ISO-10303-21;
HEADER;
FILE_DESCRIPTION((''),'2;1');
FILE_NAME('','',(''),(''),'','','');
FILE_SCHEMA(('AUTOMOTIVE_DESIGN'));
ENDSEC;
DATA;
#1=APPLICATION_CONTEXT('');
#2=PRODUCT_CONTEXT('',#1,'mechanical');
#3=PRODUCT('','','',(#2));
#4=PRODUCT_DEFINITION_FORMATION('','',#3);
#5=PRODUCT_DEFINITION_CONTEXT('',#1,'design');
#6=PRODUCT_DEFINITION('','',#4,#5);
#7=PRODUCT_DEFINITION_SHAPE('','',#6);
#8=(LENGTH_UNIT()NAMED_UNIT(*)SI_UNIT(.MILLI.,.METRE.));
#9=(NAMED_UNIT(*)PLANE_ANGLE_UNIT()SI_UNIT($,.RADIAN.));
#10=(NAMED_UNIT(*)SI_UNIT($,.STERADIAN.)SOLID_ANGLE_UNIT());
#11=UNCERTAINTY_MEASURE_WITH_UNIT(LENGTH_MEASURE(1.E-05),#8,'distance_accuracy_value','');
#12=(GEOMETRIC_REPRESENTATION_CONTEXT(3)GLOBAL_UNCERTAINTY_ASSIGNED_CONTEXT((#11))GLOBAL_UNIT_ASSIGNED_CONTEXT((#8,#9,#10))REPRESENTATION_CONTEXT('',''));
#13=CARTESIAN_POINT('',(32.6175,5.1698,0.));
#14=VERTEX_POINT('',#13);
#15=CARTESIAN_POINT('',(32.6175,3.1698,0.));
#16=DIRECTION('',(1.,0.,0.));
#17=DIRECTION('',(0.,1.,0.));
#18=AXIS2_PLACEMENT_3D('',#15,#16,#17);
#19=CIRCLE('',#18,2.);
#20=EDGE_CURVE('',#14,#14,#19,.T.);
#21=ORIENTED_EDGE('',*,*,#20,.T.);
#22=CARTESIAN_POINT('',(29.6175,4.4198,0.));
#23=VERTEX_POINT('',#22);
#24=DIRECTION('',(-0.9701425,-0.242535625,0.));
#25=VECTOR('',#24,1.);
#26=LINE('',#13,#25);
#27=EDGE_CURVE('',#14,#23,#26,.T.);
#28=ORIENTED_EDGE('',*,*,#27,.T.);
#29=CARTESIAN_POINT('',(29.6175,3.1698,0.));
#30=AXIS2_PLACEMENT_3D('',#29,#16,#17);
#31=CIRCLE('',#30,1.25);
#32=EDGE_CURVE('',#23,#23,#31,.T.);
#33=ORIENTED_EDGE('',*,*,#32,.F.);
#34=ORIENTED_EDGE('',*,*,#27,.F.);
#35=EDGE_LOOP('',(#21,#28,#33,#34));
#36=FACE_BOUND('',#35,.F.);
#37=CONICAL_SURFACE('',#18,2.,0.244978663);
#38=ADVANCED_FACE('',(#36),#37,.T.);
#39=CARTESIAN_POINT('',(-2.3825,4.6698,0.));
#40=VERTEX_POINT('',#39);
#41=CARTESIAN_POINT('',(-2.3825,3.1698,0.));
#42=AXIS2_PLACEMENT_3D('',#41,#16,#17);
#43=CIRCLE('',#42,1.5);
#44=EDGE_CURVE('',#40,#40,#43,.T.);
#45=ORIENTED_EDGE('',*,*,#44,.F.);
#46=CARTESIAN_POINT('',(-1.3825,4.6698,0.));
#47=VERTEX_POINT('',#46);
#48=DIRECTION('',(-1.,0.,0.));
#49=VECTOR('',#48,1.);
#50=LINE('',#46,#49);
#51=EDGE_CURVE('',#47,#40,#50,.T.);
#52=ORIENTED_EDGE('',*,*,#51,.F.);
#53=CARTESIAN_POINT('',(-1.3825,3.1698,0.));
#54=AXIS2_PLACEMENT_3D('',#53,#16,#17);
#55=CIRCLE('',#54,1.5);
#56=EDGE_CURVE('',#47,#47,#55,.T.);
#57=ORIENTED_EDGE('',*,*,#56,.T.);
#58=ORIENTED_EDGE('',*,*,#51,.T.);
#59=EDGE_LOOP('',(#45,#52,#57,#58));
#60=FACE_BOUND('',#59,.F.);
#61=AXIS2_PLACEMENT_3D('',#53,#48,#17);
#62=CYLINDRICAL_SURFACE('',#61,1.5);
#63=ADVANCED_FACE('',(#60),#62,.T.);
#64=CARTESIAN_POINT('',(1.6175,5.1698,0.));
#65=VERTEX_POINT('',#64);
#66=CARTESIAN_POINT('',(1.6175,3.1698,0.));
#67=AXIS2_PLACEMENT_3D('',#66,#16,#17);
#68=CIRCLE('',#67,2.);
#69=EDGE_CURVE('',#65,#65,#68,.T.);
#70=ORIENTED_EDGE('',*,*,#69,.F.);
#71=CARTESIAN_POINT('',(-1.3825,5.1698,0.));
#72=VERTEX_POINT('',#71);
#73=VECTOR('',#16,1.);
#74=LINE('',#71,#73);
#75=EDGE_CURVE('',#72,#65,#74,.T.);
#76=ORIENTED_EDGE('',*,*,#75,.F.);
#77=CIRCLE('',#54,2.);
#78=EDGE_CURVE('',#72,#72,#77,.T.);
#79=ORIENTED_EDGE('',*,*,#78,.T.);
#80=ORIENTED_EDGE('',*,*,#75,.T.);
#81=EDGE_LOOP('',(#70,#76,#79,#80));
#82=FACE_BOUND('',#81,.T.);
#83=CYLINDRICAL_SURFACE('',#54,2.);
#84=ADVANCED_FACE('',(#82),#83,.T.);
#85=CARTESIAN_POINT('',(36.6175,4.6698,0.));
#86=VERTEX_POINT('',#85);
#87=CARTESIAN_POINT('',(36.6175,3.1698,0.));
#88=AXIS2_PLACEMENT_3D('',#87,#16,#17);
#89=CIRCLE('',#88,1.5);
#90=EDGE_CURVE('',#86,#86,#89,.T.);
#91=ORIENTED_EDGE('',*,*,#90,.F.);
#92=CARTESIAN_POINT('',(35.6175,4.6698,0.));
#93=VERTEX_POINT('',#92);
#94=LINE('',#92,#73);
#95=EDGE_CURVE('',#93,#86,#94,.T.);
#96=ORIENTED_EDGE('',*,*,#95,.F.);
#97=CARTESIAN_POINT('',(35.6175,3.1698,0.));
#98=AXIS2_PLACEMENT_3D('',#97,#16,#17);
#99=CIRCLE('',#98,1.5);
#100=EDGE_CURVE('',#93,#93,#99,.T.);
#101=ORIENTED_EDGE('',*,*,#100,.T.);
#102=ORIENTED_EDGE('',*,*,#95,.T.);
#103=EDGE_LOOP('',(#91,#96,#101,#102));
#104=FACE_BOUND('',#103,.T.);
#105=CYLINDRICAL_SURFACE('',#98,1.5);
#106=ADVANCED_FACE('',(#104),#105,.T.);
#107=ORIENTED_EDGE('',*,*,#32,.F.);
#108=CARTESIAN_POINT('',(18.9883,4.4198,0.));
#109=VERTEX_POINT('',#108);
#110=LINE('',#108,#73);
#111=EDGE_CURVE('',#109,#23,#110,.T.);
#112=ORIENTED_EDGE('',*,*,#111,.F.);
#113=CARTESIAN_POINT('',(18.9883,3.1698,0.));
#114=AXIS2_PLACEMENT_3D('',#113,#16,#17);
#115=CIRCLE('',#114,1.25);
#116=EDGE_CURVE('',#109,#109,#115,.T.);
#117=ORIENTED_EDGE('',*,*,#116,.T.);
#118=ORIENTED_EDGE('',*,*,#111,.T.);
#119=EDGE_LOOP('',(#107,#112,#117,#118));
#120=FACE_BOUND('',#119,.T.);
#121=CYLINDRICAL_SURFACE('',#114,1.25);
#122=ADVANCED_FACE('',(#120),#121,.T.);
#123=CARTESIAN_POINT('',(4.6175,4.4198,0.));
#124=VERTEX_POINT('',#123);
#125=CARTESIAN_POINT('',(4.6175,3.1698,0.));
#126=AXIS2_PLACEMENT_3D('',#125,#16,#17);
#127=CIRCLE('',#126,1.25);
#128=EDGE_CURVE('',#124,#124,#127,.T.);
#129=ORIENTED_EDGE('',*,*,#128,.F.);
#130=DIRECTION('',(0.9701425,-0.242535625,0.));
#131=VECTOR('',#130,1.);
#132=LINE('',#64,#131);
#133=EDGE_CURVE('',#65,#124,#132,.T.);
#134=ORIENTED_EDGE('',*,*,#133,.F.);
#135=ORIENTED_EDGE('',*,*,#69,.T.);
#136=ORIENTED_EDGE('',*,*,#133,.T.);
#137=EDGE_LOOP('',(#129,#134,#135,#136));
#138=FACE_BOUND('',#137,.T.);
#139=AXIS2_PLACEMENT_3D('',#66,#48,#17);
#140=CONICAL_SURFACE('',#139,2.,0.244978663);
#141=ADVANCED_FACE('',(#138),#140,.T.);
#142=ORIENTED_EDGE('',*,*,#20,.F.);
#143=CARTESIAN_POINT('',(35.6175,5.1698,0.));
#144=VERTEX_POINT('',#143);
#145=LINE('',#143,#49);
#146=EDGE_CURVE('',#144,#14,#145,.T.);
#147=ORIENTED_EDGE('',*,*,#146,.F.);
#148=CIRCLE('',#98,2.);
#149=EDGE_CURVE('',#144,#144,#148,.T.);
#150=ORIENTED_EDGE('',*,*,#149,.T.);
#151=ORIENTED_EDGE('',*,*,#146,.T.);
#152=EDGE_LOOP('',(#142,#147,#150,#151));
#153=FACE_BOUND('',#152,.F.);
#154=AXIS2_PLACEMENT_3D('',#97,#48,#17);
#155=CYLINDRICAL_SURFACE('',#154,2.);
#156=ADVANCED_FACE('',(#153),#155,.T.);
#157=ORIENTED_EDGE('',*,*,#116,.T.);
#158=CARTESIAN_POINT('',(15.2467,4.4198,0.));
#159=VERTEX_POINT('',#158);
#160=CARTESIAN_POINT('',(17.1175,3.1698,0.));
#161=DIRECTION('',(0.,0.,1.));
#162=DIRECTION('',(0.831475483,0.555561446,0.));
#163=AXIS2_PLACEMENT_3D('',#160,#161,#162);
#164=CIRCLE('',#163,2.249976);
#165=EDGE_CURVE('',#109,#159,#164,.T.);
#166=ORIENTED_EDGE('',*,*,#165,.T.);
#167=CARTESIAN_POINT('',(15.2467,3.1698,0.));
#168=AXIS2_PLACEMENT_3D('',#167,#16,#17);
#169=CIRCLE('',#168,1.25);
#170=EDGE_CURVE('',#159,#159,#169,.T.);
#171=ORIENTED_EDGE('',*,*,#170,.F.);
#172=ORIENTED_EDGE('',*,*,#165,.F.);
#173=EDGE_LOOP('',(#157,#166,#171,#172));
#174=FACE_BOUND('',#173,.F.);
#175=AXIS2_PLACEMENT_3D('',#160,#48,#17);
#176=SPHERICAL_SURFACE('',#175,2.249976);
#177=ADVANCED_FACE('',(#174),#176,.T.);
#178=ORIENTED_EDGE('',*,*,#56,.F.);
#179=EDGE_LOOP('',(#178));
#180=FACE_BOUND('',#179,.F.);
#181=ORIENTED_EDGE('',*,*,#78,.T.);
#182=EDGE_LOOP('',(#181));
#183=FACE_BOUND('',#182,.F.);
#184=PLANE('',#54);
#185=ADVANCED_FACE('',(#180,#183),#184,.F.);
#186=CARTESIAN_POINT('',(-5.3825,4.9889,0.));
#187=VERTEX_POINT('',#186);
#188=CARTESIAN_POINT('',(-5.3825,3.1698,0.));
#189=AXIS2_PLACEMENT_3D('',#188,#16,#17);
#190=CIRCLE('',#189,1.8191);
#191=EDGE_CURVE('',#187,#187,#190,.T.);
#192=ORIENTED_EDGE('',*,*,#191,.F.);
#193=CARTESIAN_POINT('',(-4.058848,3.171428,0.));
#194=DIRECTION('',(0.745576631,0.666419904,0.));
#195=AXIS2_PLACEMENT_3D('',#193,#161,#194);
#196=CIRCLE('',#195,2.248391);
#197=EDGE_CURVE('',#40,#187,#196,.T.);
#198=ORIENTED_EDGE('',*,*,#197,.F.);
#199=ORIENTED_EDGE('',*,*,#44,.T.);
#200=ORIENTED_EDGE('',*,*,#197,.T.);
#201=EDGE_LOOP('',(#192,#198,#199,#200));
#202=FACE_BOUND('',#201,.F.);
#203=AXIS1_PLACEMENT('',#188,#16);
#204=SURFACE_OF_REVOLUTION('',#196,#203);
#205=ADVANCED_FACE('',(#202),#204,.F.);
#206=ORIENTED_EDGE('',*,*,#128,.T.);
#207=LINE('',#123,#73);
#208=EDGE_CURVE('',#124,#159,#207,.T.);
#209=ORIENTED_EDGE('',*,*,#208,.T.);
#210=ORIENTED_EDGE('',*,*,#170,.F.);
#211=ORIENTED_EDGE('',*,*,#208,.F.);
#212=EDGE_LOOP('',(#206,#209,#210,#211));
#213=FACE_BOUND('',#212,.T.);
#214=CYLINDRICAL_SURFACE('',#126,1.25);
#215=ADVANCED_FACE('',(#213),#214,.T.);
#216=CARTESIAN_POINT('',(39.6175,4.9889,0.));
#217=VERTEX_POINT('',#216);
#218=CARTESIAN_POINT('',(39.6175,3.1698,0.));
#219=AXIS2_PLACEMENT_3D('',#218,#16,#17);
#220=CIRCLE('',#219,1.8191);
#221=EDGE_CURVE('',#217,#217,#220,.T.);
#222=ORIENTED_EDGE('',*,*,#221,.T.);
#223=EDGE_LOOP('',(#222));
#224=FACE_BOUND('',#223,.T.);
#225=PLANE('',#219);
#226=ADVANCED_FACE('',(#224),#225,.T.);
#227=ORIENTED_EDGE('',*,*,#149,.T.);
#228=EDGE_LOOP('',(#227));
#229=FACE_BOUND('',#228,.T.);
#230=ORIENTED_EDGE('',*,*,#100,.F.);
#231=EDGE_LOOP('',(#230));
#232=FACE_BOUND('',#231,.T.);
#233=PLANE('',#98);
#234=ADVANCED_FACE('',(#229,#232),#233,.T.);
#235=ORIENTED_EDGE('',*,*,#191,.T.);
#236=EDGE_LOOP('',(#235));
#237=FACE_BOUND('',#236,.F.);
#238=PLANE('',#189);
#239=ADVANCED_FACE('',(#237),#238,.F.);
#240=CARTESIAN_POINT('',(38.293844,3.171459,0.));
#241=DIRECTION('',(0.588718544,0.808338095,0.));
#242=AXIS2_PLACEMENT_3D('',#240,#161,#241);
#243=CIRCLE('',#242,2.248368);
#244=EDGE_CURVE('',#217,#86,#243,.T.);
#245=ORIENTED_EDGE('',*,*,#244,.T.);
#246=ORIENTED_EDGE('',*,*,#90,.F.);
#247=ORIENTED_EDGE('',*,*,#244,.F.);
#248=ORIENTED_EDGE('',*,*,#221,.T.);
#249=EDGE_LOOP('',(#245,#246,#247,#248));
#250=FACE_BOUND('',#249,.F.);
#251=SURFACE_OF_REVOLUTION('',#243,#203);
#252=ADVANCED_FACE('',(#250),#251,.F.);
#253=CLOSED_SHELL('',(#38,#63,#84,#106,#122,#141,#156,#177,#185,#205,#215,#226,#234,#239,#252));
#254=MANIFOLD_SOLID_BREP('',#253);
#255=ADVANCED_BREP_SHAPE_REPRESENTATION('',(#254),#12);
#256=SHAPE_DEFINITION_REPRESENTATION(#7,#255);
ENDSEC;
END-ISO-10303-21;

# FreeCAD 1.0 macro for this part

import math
import FreeCAD as App
import Part
import Sketcher
Q = App.Units.Quantity

doc = App.newDocument("Part")
body = doc.addObject("PartDesign::Body", "Body")

# Sketch on XY plane
sketch1 = body.newObject("Sketcher::SketchObject", "Sketch")
sketch1.AttachmentSupport = (doc.getObject("XY_Plane"), [""])
sketch1.MapMode = "FlatFace"
sketch1.addGeometry(Part.LineSegment(App.Vector(1.6, 5.2, 0), App.Vector(-1.4, 5.2, 0)), False)
sketch1.addGeometry(Part.LineSegment(App.Vector(-1.4, 5.2, 0), App.Vector(-1.4, 4.7, 0)), False)
sketch1.addGeometry(Part.LineSegment(App.Vector(-1.4, 4.7, 0), App.Vector(-2.4, 4.7, 0)), False)
sketch1.addGeometry(Part.ArcOfCircle(Part.Circle(App.Vector(-4.1, 3.2, 0), App.Vector(0, 0, 1), 2.2), math.radians(42), math.radians(126)), False)
sketch1.addGeometry(Part.LineSegment(App.Vector(-5.4, 5, 0), App.Vector(-5.4, 3.2, 0)), False)
sketch1.addGeometry(Part.LineSegment(App.Vector(-5.4, 3.2, 0), App.Vector(39.6, 3.2, 0)), False)
sketch1.addGeometry(Part.LineSegment(App.Vector(39.6, 3.2, 0), App.Vector(39.6, 5, 0)), False)
sketch1.addGeometry(Part.ArcOfCircle(Part.Circle(App.Vector(38.3, 3.2, 0), App.Vector(0, 0, 1), 2.2), math.radians(54), math.radians(138)), False)
sketch1.addGeometry(Part.LineSegment(App.Vector(36.6, 4.7, 0), App.Vector(35.6, 4.7, 0)), False)
sketch1.addGeometry(Part.LineSegment(App.Vector(35.6, 4.7, 0), App.Vector(35.6, 5.2, 0)), False)
sketch1.addGeometry(Part.LineSegment(App.Vector(35.6, 5.2, 0), App.Vector(32.6, 5.2, 0)), False)
sketch1.addGeometry(Part.LineSegment(App.Vector(32.6, 5.2, 0), App.Vector(29.6, 4.4, 0)), False)
sketch1.addGeometry(Part.LineSegment(App.Vector(29.6, 4.4, 0), App.Vector(19, 4.4, 0)), False)
sketch1.addGeometry(Part.ArcOfCircle(Part.Circle(App.Vector(17.1, 3.2, 0), App.Vector(0, 0, 1), 2.2), math.radians(34), math.radians(146)), False)
sketch1.addGeometry(Part.LineSegment(App.Vector(15.2, 4.4, 0), App.Vector(4.6, 4.4, 0)), False)
sketch1.addGeometry(Part.LineSegment(App.Vector(4.6, 4.4, 0), App.Vector(1.6, 5.2, 0)), False)
sketch1.addGeometry(Part.LineSegment(App.Vector(-5.4, 3.2, 0), App.Vector(39.6, 3.2, 0)), True)  # axis
sketch1.addConstraint(Sketcher.Constraint("Coincident", 0, 2, 1, 1))
sketch1.addConstraint(Sketcher.Constraint("Coincident", 1, 2, 2, 1))
sketch1.addConstraint(Sketcher.Constraint("Coincident", 2, 2, 3, 1))
sketch1.addConstraint(Sketcher.Constraint("Coincident", 3, 2, 4, 1))
sketch1.addConstraint(Sketcher.Constraint("Coincident", 4, 2, 5, 1))
sketch1.addConstraint(Sketcher.Constraint("Coincident", 5, 2, 6, 1))
sketch1.addConstraint(Sketcher.Constraint("Coincident", 6, 2, 7, 1))
sketch1.addConstraint(Sketcher.Constraint("Coincident", 7, 2, 8, 1))
sketch1.addConstraint(Sketcher.Constraint("Coincident", 8, 2, 9, 1))
sketch1.addConstraint(Sketcher.Constraint("Coincident", 9, 2, 10, 1))
sketch1.addConstraint(Sketcher.Constraint("Coincident", 10, 2, 11, 1))
sketch1.addConstraint(Sketcher.Constraint("Coincident", 11, 2, 12, 1))
sketch1.addConstraint(Sketcher.Constraint("Coincident", 12, 2, 13, 1))
sketch1.addConstraint(Sketcher.Constraint("Coincident", 13, 2, 14, 1))
sketch1.addConstraint(Sketcher.Constraint("Coincident", 14, 2, 15, 1))
sketch1.addConstraint(Sketcher.Constraint("Coincident", 15, 2, 0, 1))
sketch1.addConstraint(Sketcher.Constraint("Horizontal", 0))
sketch1.addConstraint(Sketcher.Constraint("Vertical", 1))
sketch1.addConstraint(Sketcher.Constraint("Horizontal", 2))
sketch1.addConstraint(Sketcher.Constraint("Vertical", 4))
sketch1.addConstraint(Sketcher.Constraint("Horizontal", 5))
sketch1.addConstraint(Sketcher.Constraint("Vertical", 6))
sketch1.addConstraint(Sketcher.Constraint("Horizontal", 8))
sketch1.addConstraint(Sketcher.Constraint("Vertical", 9))
sketch1.addConstraint(Sketcher.Constraint("Horizontal", 10))
sketch1.addConstraint(Sketcher.Constraint("Horizontal", 12))
sketch1.addConstraint(Sketcher.Constraint("Horizontal", 14))
sketch1.addConstraint(Sketcher.Constraint("Horizontal", 16))
sketch1.addConstraint(Sketcher.Constraint("Coincident", 16, 1, 4, 2))
sketch1.addConstraint(Sketcher.Constraint("Equal", 3, 7))
sketch1.addConstraint(Sketcher.Constraint("Horizontal", 3, 3, 7, 3))
sketch1.addConstraint(Sketcher.Constraint("Horizontal", 13, 3, 4, 2))
sketch1.addConstraint(Sketcher.Constraint("Horizontal", 3, 2, 6, 2))
sketch1.addConstraint(Sketcher.Constraint("Horizontal", 2, 2, 7, 2))
sketch1.addConstraint(Sketcher.Constraint("Horizontal", 0, 2, 9, 2))
sketch1.addConstraint(Sketcher.Constraint("Horizontal", 12, 2, 13, 2))
sketch1.addConstraint(Sketcher.Constraint("Vertical", 6, 2, 16, 2))
sketch1.addConstraint(Sketcher.Constraint("Equal", 2, 8))
sketch1.addConstraint(Sketcher.Constraint("Equal", 0, 10))
sketch1.addConstraint(Sketcher.Constraint("Equal", 12, 14))
sketch1.addConstraint(Sketcher.Constraint("Equal", 11, 15))
sketch1.addConstraint(Sketcher.Constraint("DistanceX", 0, 2, 0, 1, Q("3 mm")))
sketch1.addConstraint(Sketcher.Constraint("DistanceX", 2, 2, 2, 1, Q("1 mm")))
sketch1.addConstraint(Sketcher.Constraint("Radius", 13, Q("2.25 mm")))
sketch1.addConstraint(Sketcher.Constraint("DistanceY", 13, 3, 0, 2, Q("2 mm")))
sketch1.addConstraint(Sketcher.Constraint("DistanceX", 3, 2, 2, 2, Q("3 mm")))
sketch1.addConstraint(Sketcher.Constraint("DistanceX", 11, 2, 10, 2, Q("3 mm")))
sketch1.addConstraint(Sketcher.Constraint("DistanceY", 13, 3, 1, 2, Q("1.5 mm")))
sketch1.addConstraint(Sketcher.Constraint("DistanceX", 5, 1, 5, 2, Q("45 mm")))
sketch1.addConstraint(Sketcher.Constraint("DistanceY", 13, 3, 12, 2, Q("1.25 mm")))
sketch1.addConstraint(Sketcher.Constraint("Radius", 3, Q("2.2484 mm")))
sketch1.addConstraint(Sketcher.Constraint("DistanceY", 4, 2, 4, 1, Q("1.819 mm")))
sketch1.addConstraint(Sketcher.Constraint("DistanceY", -1, 1, 3, 2, Q("4.989 mm")))
sketch1.addConstraint(Sketcher.Constraint("DistanceX", 3, 3, -1, 1, Q("4.0588 mm")))
revolution = body.newObject("PartDesign::Revolution", "Revolution")
revolution.Profile = sketch1
revolution.ReferenceAxis = (sketch1, ["Axis0"])
revolution.Angle = 360

doc.recompute()
